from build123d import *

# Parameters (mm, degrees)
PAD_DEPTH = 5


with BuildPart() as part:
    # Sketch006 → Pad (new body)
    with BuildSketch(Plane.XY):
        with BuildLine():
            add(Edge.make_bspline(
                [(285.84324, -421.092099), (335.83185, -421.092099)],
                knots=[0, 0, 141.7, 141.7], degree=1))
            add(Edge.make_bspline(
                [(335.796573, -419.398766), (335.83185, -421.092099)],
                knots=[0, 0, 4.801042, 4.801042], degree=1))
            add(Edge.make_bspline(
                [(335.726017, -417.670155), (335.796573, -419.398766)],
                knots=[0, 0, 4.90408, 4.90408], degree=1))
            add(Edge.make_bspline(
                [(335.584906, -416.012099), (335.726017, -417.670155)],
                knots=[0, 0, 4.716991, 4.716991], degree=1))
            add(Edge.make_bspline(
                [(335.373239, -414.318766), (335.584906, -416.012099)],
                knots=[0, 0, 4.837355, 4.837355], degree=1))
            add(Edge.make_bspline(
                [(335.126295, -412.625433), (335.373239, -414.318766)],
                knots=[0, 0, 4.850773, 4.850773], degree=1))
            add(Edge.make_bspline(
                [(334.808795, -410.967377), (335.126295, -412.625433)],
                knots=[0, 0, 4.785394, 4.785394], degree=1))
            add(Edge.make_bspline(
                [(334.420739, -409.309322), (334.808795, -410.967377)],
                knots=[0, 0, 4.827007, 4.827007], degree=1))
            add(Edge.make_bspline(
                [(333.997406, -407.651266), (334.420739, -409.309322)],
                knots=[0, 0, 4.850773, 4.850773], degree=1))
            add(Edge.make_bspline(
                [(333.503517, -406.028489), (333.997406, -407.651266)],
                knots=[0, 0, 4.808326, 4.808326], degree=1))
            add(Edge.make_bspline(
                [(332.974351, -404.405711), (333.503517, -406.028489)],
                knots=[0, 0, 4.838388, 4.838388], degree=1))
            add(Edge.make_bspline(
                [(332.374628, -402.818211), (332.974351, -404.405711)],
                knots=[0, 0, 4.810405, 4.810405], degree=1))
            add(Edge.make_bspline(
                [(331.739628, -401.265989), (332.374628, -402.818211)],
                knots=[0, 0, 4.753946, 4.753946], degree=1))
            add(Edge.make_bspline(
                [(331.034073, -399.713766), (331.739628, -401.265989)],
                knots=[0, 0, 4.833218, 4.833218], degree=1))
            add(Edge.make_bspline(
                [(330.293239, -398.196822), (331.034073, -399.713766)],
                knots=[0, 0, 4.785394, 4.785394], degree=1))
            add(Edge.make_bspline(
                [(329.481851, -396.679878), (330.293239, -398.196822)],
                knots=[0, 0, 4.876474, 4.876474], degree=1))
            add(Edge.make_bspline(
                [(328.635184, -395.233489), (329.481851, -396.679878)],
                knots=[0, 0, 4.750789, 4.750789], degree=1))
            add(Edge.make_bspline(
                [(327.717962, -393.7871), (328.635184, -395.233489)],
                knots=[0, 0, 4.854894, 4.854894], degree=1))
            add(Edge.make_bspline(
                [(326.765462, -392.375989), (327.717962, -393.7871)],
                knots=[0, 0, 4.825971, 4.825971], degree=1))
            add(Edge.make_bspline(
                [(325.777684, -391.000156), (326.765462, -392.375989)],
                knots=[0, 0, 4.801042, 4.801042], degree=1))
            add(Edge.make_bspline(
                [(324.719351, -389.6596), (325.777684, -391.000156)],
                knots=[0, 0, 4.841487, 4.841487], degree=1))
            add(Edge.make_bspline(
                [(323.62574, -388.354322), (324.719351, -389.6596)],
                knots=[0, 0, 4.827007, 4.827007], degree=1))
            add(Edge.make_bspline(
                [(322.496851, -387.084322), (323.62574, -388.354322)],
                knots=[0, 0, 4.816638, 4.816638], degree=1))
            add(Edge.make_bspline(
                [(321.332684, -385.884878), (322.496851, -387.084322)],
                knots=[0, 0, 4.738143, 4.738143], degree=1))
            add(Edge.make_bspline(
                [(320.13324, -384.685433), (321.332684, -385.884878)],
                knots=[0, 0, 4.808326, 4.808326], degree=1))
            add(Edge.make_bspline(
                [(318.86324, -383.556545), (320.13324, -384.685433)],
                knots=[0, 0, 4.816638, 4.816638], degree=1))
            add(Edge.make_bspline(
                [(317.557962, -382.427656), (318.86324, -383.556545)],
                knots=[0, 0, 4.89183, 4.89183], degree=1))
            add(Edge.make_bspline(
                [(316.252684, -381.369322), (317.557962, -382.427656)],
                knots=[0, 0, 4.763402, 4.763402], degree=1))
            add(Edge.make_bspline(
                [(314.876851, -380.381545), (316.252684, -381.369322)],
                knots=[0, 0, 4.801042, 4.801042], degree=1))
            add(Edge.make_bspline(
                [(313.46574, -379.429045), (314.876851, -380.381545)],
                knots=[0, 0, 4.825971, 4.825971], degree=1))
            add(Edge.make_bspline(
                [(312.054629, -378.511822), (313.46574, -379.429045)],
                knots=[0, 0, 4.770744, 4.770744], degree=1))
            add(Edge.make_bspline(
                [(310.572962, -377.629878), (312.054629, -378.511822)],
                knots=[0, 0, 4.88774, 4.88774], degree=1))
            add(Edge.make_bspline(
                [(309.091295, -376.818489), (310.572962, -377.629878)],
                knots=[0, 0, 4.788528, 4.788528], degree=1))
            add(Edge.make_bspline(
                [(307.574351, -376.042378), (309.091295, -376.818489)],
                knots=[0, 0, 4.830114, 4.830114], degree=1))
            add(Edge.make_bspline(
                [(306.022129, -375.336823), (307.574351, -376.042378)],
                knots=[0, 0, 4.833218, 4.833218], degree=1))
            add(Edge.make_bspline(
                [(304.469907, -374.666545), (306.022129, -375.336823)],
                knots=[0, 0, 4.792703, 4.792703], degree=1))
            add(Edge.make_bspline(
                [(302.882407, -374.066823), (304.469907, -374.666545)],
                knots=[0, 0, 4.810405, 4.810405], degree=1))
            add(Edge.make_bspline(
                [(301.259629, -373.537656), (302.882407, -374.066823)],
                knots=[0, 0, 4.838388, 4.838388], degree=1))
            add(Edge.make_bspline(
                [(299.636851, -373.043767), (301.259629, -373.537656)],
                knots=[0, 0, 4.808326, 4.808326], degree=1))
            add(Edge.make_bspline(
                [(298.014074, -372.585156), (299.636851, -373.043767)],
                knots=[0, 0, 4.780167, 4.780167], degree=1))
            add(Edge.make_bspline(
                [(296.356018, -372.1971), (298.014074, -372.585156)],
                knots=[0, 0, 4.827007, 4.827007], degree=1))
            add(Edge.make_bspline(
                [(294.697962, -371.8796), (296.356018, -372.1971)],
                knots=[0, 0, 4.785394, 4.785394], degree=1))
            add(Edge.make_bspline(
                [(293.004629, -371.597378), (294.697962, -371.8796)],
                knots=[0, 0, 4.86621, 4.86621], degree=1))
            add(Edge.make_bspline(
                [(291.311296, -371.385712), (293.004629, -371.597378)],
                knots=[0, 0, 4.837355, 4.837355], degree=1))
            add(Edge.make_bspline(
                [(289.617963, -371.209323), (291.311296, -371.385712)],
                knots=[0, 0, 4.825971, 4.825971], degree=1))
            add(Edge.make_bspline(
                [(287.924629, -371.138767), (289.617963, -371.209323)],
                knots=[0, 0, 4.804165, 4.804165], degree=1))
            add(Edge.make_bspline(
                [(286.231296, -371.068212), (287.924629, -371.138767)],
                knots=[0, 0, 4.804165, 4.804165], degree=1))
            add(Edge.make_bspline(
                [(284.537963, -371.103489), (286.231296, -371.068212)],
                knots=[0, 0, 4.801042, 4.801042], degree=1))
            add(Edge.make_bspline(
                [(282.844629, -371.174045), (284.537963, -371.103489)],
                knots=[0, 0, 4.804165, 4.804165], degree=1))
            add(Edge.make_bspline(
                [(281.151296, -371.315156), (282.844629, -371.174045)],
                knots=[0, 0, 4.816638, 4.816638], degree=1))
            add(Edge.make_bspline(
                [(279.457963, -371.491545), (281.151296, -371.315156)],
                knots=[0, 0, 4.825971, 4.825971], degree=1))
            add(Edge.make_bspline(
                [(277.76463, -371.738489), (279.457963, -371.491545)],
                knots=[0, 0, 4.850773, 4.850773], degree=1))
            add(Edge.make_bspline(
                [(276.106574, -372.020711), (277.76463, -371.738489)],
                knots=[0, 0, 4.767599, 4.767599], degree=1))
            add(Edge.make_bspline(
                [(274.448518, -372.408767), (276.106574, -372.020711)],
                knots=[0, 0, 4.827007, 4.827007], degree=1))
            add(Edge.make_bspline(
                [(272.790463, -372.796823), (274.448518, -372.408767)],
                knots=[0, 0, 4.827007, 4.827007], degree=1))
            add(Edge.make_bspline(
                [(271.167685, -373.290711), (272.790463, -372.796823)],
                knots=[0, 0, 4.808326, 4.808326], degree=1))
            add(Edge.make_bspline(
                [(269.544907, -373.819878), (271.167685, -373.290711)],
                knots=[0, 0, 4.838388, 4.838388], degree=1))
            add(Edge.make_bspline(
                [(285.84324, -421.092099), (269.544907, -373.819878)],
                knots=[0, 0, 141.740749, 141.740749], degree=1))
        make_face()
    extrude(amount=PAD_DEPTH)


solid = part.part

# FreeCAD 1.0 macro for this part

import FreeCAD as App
import Part
import Sketcher

V = App.Vector

doc = App.newDocument("Part")
body = doc.addObject("PartDesign::Body", "Body")

# Sketch on XY plane
sketch1 = body.newObject("Sketcher::SketchObject", "Sketch")
sketch1.AttachmentSupport = (doc.getObject("XY_Plane"), [""])
sketch1.MapMode = "FlatFace"
sketch1.addGeometry([
    Part.BSplineCurve([V(285.84324, -421.092099, 0), V(335.83185, -421.092099, 0)], [2, 2], [0, 141.7], False, 1, [1, 1], False),  # 0
    Part.BSplineCurve([V(335.796573, -419.398766, 0), V(335.83185, -421.092099, 0)], [2, 2], [0, 4.801042], False, 1, [1, 1], False),  # 1
    Part.BSplineCurve([V(335.726017, -417.670155, 0), V(335.796573, -419.398766, 0)], [2, 2], [0, 4.90408], False, 1, [1, 1], False),  # 2
    Part.BSplineCurve([V(335.584906, -416.012099, 0), V(335.726017, -417.670155, 0)], [2, 2], [0, 4.716991], False, 1, [1, 1], False),  # 3
    Part.BSplineCurve([V(335.373239, -414.318766, 0), V(335.584906, -416.012099, 0)], [2, 2], [0, 4.837355], False, 1, [1, 1], False),  # 4
    Part.BSplineCurve([V(335.126295, -412.625433, 0), V(335.373239, -414.318766, 0)], [2, 2], [0, 4.850773], False, 1, [1, 1], False),  # 5
    Part.BSplineCurve([V(334.808795, -410.967377, 0), V(335.126295, -412.625433, 0)], [2, 2], [0, 4.785394], False, 1, [1, 1], False),  # 6
    Part.BSplineCurve([V(334.420739, -409.309322, 0), V(334.808795, -410.967377, 0)], [2, 2], [0, 4.827007], False, 1, [1, 1], False),  # 7
    Part.BSplineCurve([V(333.997406, -407.651266, 0), V(334.420739, -409.309322, 0)], [2, 2], [0, 4.850773], False, 1, [1, 1], False),  # 8
    Part.BSplineCurve([V(333.503517, -406.028489, 0), V(333.997406, -407.651266, 0)], [2, 2], [0, 4.808326], False, 1, [1, 1], False),  # 9
    Part.BSplineCurve([V(332.974351, -404.405711, 0), V(333.503517, -406.028489, 0)], [2, 2], [0, 4.838388], False, 1, [1, 1], False),  # 10
    Part.BSplineCurve([V(332.374628, -402.818211, 0), V(332.974351, -404.405711, 0)], [2, 2], [0, 4.810405], False, 1, [1, 1], False),  # 11
    Part.BSplineCurve([V(331.739628, -401.265989, 0), V(332.374628, -402.818211, 0)], [2, 2], [0, 4.753946], False, 1, [1, 1], False),  # 12
    Part.BSplineCurve([V(331.034073, -399.713766, 0), V(331.739628, -401.265989, 0)], [2, 2], [0, 4.833218], False, 1, [1, 1], False),  # 13
    Part.BSplineCurve([V(330.293239, -398.196822, 0), V(331.034073, -399.713766, 0)], [2, 2], [0, 4.785394], False, 1, [1, 1], False),  # 14
    Part.BSplineCurve([V(329.481851, -396.679878, 0), V(330.293239, -398.196822, 0)], [2, 2], [0, 4.876474], False, 1, [1, 1], False),  # 15
    Part.BSplineCurve([V(328.635184, -395.233489, 0), V(329.481851, -396.679878, 0)], [2, 2], [0, 4.750789], False, 1, [1, 1], False),  # 16
    Part.BSplineCurve([V(327.717962, -393.7871, 0), V(328.635184, -395.233489, 0)], [2, 2], [0, 4.854894], False, 1, [1, 1], False),  # 17
    Part.BSplineCurve([V(326.765462, -392.375989, 0), V(327.717962, -393.7871, 0)], [2, 2], [0, 4.825971], False, 1, [1, 1], False),  # 18
    Part.BSplineCurve([V(325.777684, -391.000156, 0), V(326.765462, -392.375989, 0)], [2, 2], [0, 4.801042], False, 1, [1, 1], False),  # 19
    Part.BSplineCurve([V(324.719351, -389.6596, 0), V(325.777684, -391.000156, 0)], [2, 2], [0, 4.841487], False, 1, [1, 1], False),  # 20
    Part.BSplineCurve([V(323.62574, -388.354322, 0), V(324.719351, -389.6596, 0)], [2, 2], [0, 4.827007], False, 1, [1, 1], False),  # 21
    Part.BSplineCurve([V(322.496851, -387.084322, 0), V(323.62574, -388.354322, 0)], [2, 2], [0, 4.816638], False, 1, [1, 1], False),  # 22
    Part.BSplineCurve([V(321.332684, -385.884878, 0), V(322.496851, -387.084322, 0)], [2, 2], [0, 4.738143], False, 1, [1, 1], False),  # 23
    Part.BSplineCurve([V(320.13324, -384.685433, 0), V(321.332684, -385.884878, 0)], [2, 2], [0, 4.808326], False, 1, [1, 1], False),  # 24
    Part.BSplineCurve([V(318.86324, -383.556545, 0), V(320.13324, -384.685433, 0)], [2, 2], [0, 4.816638], False, 1, [1, 1], False),  # 25
    Part.BSplineCurve([V(317.557962, -382.427656, 0), V(318.86324, -383.556545, 0)], [2, 2], [0, 4.89183], False, 1, [1, 1], False),  # 26
    Part.BSplineCurve([V(316.252684, -381.369322, 0), V(317.557962, -382.427656, 0)], [2, 2], [0, 4.763402], False, 1, [1, 1], False),  # 27
    Part.BSplineCurve([V(314.876851, -380.381545, 0), V(316.252684, -381.369322, 0)], [2, 2], [0, 4.801042], False, 1, [1, 1], False),  # 28
    Part.BSplineCurve([V(313.46574, -379.429045, 0), V(314.876851, -380.381545, 0)], [2, 2], [0, 4.825971], False, 1, [1, 1], False),  # 29
    Part.BSplineCurve([V(312.054629, -378.511822, 0), V(313.46574, -379.429045, 0)], [2, 2], [0, 4.770744], False, 1, [1, 1], False),  # 30
    Part.BSplineCurve([V(310.572962, -377.629878, 0), V(312.054629, -378.511822, 0)], [2, 2], [0, 4.88774], False, 1, [1, 1], False),  # 31
    Part.BSplineCurve([V(309.091295, -376.818489, 0), V(310.572962, -377.629878, 0)], [2, 2], [0, 4.788528], False, 1, [1, 1], False),  # 32
    Part.BSplineCurve([V(307.574351, -376.042378, 0), V(309.091295, -376.818489, 0)], [2, 2], [0, 4.830114], False, 1, [1, 1], False),  # 33
    Part.BSplineCurve([V(306.022129, -375.336823, 0), V(307.574351, -376.042378, 0)], [2, 2], [0, 4.833218], False, 1, [1, 1], False),  # 34
    Part.BSplineCurve([V(304.469907, -374.666545, 0), V(306.022129, -375.336823, 0)], [2, 2], [0, 4.792703], False, 1, [1, 1], False),  # 35
    Part.BSplineCurve([V(302.882407, -374.066823, 0), V(304.469907, -374.666545, 0)], [2, 2], [0, 4.810405], False, 1, [1, 1], False),  # 36
    Part.BSplineCurve([V(301.259629, -373.537656, 0), V(302.882407, -374.066823, 0)], [2, 2], [0, 4.838388], False, 1, [1, 1], False),  # 37
    Part.BSplineCurve([V(299.636851, -373.043767, 0), V(301.259629, -373.537656, 0)], [2, 2], [0, 4.808326], False, 1, [1, 1], False),  # 38
    Part.BSplineCurve([V(298.014074, -372.585156, 0), V(299.636851, -373.043767, 0)], [2, 2], [0, 4.780167], False, 1, [1, 1], False),  # 39
    Part.BSplineCurve([V(296.356018, -372.1971, 0), V(298.014074, -372.585156, 0)], [2, 2], [0, 4.827007], False, 1, [1, 1], False),  # 40
    Part.BSplineCurve([V(294.697962, -371.8796, 0), V(296.356018, -372.1971, 0)], [2, 2], [0, 4.785394], False, 1, [1, 1], False),  # 41
    Part.BSplineCurve([V(293.004629, -371.597378, 0), V(294.697962, -371.8796, 0)], [2, 2], [0, 4.86621], False, 1, [1, 1], False),  # 42
    Part.BSplineCurve([V(291.311296, -371.385712, 0), V(293.004629, -371.597378, 0)], [2, 2], [0, 4.837355], False, 1, [1, 1], False),  # 43
    Part.BSplineCurve([V(289.617963, -371.209323, 0), V(291.311296, -371.385712, 0)], [2, 2], [0, 4.825971], False, 1, [1, 1], False),  # 44
    Part.BSplineCurve([V(287.924629, -371.138767, 0), V(289.617963, -371.209323, 0)], [2, 2], [0, 4.804165], False, 1, [1, 1], False),  # 45
    Part.BSplineCurve([V(286.231296, -371.068212, 0), V(287.924629, -371.138767, 0)], [2, 2], [0, 4.804165], False, 1, [1, 1], False),  # 46
    Part.BSplineCurve([V(284.537963, -371.103489, 0), V(286.231296, -371.068212, 0)], [2, 2], [0, 4.801042], False, 1, [1, 1], False),  # 47
    Part.BSplineCurve([V(282.844629, -371.174045, 0), V(284.537963, -371.103489, 0)], [2, 2], [0, 4.804165], False, 1, [1, 1], False),  # 48
    Part.BSplineCurve([V(281.151296, -371.315156, 0), V(282.844629, -371.174045, 0)], [2, 2], [0, 4.816638], False, 1, [1, 1], False),  # 49
    Part.BSplineCurve([V(279.457963, -371.491545, 0), V(281.151296, -371.315156, 0)], [2, 2], [0, 4.825971], False, 1, [1, 1], False),  # 50
    Part.BSplineCurve([V(277.76463, -371.738489, 0), V(279.457963, -371.491545, 0)], [2, 2], [0, 4.850773], False, 1, [1, 1], False),  # 51
    Part.BSplineCurve([V(276.106574, -372.020711, 0), V(277.76463, -371.738489, 0)], [2, 2], [0, 4.767599], False, 1, [1, 1], False),  # 52
    Part.BSplineCurve([V(274.448518, -372.408767, 0), V(276.106574, -372.020711, 0)], [2, 2], [0, 4.827007], False, 1, [1, 1], False),  # 53
    Part.BSplineCurve([V(272.790463, -372.796823, 0), V(274.448518, -372.408767, 0)], [2, 2], [0, 4.827007], False, 1, [1, 1], False),  # 54
    Part.BSplineCurve([V(271.167685, -373.290711, 0), V(272.790463, -372.796823, 0)], [2, 2], [0, 4.808326], False, 1, [1, 1], False),  # 55
    Part.BSplineCurve([V(269.544907, -373.819878, 0), V(271.167685, -373.290711, 0)], [2, 2], [0, 4.838388], False, 1, [1, 1], False),  # 56
    Part.BSplineCurve([V(285.84324, -421.092099, 0), V(269.544907, -373.819878, 0)], [2, 2], [0, 141.740749], False, 1, [1, 1], False),  # 57
], False)
sketch1.addConstraint([
    Sketcher.Constraint("Block", 0),
    Sketcher.Constraint("Block", 1),
    Sketcher.Constraint("Block", 2),
    Sketcher.Constraint("Block", 3),
    Sketcher.Constraint("Block", 4),
    Sketcher.Constraint("Block", 5),
    Sketcher.Constraint("Block", 6),
    Sketcher.Constraint("Block", 7),
    Sketcher.Constraint("Block", 8),
    Sketcher.Constraint("Block", 9),
    Sketcher.Constraint("Block", 10),
    Sketcher.Constraint("Block", 11),
    Sketcher.Constraint("Block", 12),
    Sketcher.Constraint("Block", 13),
    Sketcher.Constraint("Block", 14),
    Sketcher.Constraint("Block", 15),
    Sketcher.Constraint("Block", 16),
    Sketcher.Constraint("Block", 17),
    Sketcher.Constraint("Block", 18),
    Sketcher.Constraint("Block", 19),
    Sketcher.Constraint("Block", 20),
    Sketcher.Constraint("Block", 21),
    Sketcher.Constraint("Block", 22),
    Sketcher.Constraint("Block", 23),
    Sketcher.Constraint("Block", 24),
    Sketcher.Constraint("Block", 25),
    Sketcher.Constraint("Block", 26),
    Sketcher.Constraint("Block", 27),
    Sketcher.Constraint("Block", 28),
    Sketcher.Constraint("Block", 29),
    Sketcher.Constraint("Block", 30),
    Sketcher.Constraint("Block", 31),
    Sketcher.Constraint("Block", 32),
    Sketcher.Constraint("Block", 33),
    Sketcher.Constraint("Block", 34),
    Sketcher.Constraint("Block", 35),
    Sketcher.Constraint("Block", 36),
    Sketcher.Constraint("Block", 37),
    Sketcher.Constraint("Block", 38),
    Sketcher.Constraint("Block", 39),
    Sketcher.Constraint("Block", 40),
    Sketcher.Constraint("Block", 41),
    Sketcher.Constraint("Block", 42),
    Sketcher.Constraint("Block", 43),
    Sketcher.Constraint("Block", 44),
    Sketcher.Constraint("Block", 45),
    Sketcher.Constraint("Block", 46),
    Sketcher.Constraint("Block", 47),
    Sketcher.Constraint("Block", 48),
    Sketcher.Constraint("Block", 49),
    Sketcher.Constraint("Block", 50),
    Sketcher.Constraint("Block", 51),
    Sketcher.Constraint("Block", 52),
    Sketcher.Constraint("Block", 53),
    Sketcher.Constraint("Block", 54),
    Sketcher.Constraint("Block", 55),
    Sketcher.Constraint("Block", 56),
    Sketcher.Constraint("Block", 57),
])
pad1 = body.newObject("PartDesign::Pad", "Pad")
pad1.Profile = sketch1
pad1.Length = 5

doc.recompute()
